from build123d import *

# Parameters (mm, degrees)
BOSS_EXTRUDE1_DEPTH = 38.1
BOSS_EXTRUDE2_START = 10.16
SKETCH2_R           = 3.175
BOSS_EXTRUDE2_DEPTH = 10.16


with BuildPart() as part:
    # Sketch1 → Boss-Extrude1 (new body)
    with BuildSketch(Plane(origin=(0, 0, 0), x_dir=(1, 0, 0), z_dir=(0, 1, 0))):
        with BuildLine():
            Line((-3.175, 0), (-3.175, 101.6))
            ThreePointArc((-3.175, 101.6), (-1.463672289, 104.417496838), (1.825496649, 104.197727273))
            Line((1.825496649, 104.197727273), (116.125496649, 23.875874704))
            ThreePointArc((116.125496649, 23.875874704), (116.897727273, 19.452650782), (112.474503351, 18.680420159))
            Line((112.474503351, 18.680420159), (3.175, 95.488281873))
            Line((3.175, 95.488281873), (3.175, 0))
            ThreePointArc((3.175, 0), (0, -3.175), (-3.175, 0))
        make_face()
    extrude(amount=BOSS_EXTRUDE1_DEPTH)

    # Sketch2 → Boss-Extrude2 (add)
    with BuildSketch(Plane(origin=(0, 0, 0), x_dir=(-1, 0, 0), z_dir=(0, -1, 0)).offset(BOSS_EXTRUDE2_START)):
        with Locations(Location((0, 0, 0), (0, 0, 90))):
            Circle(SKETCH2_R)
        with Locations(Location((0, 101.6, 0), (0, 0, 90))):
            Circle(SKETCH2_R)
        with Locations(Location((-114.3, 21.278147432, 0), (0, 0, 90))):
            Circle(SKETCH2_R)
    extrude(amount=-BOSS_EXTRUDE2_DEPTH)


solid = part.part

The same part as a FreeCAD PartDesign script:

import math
import FreeCAD as App
import Part
import Sketcher

V = App.Vector
Q = App.Units.Quantity

doc = App.newDocument("Part")
params = doc.addObject("Spreadsheet::Sheet", "Params")
for row, (alias, value) in enumerate([
    ("sketch1_height", "4 in"),
    ("sketch1_radius", "0.125 in"),
    ("sketch1_length", "5.5 in"),
    ("pad1_length", "1.5 in"),
    ("sketch2_diameter", "0.25 in"),
    ("pad2_length", "0.4 in"),
], start=1):
    params.set(f"A{row}", alias)
    params.set(f"B{row}", "=" + value)
    params.setAlias(f"B{row}", alias)

body = doc.addObject("PartDesign::Body", "Body")

# Sketch on XZ plane
sketch1 = body.newObject("Sketcher::SketchObject", "Sketch")
sketch1.AttachmentSupport = (doc.getObject("XZ_Plane"), [""])
sketch1.MapMode = "FlatFace"
sketch1.addGeometry(Part.LineSegment(V(-3.2, -101.6, 0), V(-3.2, 0, 0)), False)
sketch1.addGeometry(Part.ArcOfCircle(Part.Circle(V(0, 0, 0), V(0, 0, 1), 3.2), math.radians(0), math.radians(180)), False)
sketch1.addGeometry(Part.LineSegment(V(3.2, 0, 0), V(3.2, -95.5, 0)), False)
sketch1.addGeometry(Part.LineSegment(V(3.2, -95.5, 0), V(112.5, -18.7, 0)), False)
sketch1.addGeometry(Part.ArcOfCircle(Part.Circle(V(114.3, -21.3, 0), V(0, 0, 1), 3.2), math.radians(-55), math.radians(125)), False)
sketch1.addGeometry(Part.LineSegment(V(116.1, -23.9, 0), V(1.8, -104.2, 0)), False)
sketch1.addGeometry(Part.ArcOfCircle(Part.Circle(V(0, -101.6, 0), V(0, 0, 1), 3.2), math.radians(180), math.radians(305)), False)
sketch1.addConstraint(Sketcher.Constraint("Tangent", 0, 2, 1, 2))
sketch1.addConstraint(Sketcher.Constraint("Tangent", 1, 1, 2, 1))
sketch1.addConstraint(Sketcher.Constraint("Coincident", 2, 2, 3, 1))
sketch1.addConstraint(Sketcher.Constraint("Tangent", 3, 2, 4, 2))
sketch1.addConstraint(Sketcher.Constraint("Tangent", 4, 1, 5, 1))
sketch1.addConstraint(Sketcher.Constraint("Tangent", 5, 2, 6, 2))
sketch1.addConstraint(Sketcher.Constraint("Tangent", 6, 1, 0, 1))
sketch1.addConstraint(Sketcher.Constraint("Vertical", 0))
sketch1.addConstraint(Sketcher.Constraint("Vertical", 2))
sketch1.addConstraint(Sketcher.Constraint("Coincident", 1, 3, -1, 1))
sketch1.addConstraint(Sketcher.Constraint("Equal", 1, 4))
sketch1.addConstraint(Sketcher.Constraint("Equal", 4, 6))
sketch1.addConstraint(Sketcher.Constraint("Parallel", 3, 5))
sketch1.addConstraint(Sketcher.Constraint("DistanceY", 0, 1, 0, 2, Q("4 in")))
sketch1.addConstraint(Sketcher.Constraint("Radius", 1, Q("0.125 in")))
sketch1.addConstraint(Sketcher.Constraint("Distance", 5, Q("5.5 in")))
sketch1.addConstraint(Sketcher.Constraint("DistanceX", -1, 1, 4, 3, Q("4.5 in")))
sketch1.setExpression("Constraints[13]", "Params.sketch1_height")
sketch1.setExpression("Constraints[14]", "Params.sketch1_radius")
sketch1.setExpression("Constraints[15]", "Params.sketch1_length")
pad1 = body.newObject("PartDesign::Pad", "Pad")
pad1.Profile = sketch1
pad1.setExpression("Length", "Params.pad1_length")
pad1.Reversed = True

# Sketch on XZ plane
sketch2 = body.newObject("Sketcher::SketchObject", "Sketch001")
sketch2.AttachmentSupport = (doc.getObject("XZ_Plane"), [""])
sketch2.MapMode = "FlatFace"
sketch2.AttachmentOffset = App.Placement(V(0, 0, 0.4 * 25.4), App.Rotation())
sketch2.addGeometry(Part.Circle(V(0, 0, 0), V(0, 0, 1), 3.2), False)
sketch2.addGeometry(Part.Circle(V(0, -101.6, 0), V(0, 0, 1), 3.2), False)
sketch2.addGeometry(Part.Circle(V(114.3, -21.3, 0), V(0, 0, 1), 3.2), False)
sketch2.addConstraint(Sketcher.Constraint("Coincident", 0, 3, -1, 1))
sketch2.addConstraint(Sketcher.Constraint("Equal", 0, 1))
sketch2.addConstraint(Sketcher.Constraint("Equal", 1, 2))
sketch2.addConstraint(Sketcher.Constraint("PointOnObject", 1, 3, -2))
sketch2.addConstraint(Sketcher.Constraint("Diameter", 0, Q("0.25 in")))
sketch2.addConstraint(Sketcher.Constraint("DistanceY", 1, 3, -1, 1, Q("4 in")))
sketch2.addConstraint(Sketcher.Constraint("DistanceX", -1, 1, 2, 3, Q("4.5 in")))
sketch2.addConstraint(Sketcher.Constraint("DistanceY", 2, 3, -1, 1, 21.278147))
sketch2.setExpression("Constraints[4]", "Params.sketch2_diameter")
pad2 = body.newObject("PartDesign::Pad", "Pad001")
pad2.Profile = sketch2
pad2.setExpression("Length", "Params.pad2_length")
pad2.Reversed = True

doc.recompute()
